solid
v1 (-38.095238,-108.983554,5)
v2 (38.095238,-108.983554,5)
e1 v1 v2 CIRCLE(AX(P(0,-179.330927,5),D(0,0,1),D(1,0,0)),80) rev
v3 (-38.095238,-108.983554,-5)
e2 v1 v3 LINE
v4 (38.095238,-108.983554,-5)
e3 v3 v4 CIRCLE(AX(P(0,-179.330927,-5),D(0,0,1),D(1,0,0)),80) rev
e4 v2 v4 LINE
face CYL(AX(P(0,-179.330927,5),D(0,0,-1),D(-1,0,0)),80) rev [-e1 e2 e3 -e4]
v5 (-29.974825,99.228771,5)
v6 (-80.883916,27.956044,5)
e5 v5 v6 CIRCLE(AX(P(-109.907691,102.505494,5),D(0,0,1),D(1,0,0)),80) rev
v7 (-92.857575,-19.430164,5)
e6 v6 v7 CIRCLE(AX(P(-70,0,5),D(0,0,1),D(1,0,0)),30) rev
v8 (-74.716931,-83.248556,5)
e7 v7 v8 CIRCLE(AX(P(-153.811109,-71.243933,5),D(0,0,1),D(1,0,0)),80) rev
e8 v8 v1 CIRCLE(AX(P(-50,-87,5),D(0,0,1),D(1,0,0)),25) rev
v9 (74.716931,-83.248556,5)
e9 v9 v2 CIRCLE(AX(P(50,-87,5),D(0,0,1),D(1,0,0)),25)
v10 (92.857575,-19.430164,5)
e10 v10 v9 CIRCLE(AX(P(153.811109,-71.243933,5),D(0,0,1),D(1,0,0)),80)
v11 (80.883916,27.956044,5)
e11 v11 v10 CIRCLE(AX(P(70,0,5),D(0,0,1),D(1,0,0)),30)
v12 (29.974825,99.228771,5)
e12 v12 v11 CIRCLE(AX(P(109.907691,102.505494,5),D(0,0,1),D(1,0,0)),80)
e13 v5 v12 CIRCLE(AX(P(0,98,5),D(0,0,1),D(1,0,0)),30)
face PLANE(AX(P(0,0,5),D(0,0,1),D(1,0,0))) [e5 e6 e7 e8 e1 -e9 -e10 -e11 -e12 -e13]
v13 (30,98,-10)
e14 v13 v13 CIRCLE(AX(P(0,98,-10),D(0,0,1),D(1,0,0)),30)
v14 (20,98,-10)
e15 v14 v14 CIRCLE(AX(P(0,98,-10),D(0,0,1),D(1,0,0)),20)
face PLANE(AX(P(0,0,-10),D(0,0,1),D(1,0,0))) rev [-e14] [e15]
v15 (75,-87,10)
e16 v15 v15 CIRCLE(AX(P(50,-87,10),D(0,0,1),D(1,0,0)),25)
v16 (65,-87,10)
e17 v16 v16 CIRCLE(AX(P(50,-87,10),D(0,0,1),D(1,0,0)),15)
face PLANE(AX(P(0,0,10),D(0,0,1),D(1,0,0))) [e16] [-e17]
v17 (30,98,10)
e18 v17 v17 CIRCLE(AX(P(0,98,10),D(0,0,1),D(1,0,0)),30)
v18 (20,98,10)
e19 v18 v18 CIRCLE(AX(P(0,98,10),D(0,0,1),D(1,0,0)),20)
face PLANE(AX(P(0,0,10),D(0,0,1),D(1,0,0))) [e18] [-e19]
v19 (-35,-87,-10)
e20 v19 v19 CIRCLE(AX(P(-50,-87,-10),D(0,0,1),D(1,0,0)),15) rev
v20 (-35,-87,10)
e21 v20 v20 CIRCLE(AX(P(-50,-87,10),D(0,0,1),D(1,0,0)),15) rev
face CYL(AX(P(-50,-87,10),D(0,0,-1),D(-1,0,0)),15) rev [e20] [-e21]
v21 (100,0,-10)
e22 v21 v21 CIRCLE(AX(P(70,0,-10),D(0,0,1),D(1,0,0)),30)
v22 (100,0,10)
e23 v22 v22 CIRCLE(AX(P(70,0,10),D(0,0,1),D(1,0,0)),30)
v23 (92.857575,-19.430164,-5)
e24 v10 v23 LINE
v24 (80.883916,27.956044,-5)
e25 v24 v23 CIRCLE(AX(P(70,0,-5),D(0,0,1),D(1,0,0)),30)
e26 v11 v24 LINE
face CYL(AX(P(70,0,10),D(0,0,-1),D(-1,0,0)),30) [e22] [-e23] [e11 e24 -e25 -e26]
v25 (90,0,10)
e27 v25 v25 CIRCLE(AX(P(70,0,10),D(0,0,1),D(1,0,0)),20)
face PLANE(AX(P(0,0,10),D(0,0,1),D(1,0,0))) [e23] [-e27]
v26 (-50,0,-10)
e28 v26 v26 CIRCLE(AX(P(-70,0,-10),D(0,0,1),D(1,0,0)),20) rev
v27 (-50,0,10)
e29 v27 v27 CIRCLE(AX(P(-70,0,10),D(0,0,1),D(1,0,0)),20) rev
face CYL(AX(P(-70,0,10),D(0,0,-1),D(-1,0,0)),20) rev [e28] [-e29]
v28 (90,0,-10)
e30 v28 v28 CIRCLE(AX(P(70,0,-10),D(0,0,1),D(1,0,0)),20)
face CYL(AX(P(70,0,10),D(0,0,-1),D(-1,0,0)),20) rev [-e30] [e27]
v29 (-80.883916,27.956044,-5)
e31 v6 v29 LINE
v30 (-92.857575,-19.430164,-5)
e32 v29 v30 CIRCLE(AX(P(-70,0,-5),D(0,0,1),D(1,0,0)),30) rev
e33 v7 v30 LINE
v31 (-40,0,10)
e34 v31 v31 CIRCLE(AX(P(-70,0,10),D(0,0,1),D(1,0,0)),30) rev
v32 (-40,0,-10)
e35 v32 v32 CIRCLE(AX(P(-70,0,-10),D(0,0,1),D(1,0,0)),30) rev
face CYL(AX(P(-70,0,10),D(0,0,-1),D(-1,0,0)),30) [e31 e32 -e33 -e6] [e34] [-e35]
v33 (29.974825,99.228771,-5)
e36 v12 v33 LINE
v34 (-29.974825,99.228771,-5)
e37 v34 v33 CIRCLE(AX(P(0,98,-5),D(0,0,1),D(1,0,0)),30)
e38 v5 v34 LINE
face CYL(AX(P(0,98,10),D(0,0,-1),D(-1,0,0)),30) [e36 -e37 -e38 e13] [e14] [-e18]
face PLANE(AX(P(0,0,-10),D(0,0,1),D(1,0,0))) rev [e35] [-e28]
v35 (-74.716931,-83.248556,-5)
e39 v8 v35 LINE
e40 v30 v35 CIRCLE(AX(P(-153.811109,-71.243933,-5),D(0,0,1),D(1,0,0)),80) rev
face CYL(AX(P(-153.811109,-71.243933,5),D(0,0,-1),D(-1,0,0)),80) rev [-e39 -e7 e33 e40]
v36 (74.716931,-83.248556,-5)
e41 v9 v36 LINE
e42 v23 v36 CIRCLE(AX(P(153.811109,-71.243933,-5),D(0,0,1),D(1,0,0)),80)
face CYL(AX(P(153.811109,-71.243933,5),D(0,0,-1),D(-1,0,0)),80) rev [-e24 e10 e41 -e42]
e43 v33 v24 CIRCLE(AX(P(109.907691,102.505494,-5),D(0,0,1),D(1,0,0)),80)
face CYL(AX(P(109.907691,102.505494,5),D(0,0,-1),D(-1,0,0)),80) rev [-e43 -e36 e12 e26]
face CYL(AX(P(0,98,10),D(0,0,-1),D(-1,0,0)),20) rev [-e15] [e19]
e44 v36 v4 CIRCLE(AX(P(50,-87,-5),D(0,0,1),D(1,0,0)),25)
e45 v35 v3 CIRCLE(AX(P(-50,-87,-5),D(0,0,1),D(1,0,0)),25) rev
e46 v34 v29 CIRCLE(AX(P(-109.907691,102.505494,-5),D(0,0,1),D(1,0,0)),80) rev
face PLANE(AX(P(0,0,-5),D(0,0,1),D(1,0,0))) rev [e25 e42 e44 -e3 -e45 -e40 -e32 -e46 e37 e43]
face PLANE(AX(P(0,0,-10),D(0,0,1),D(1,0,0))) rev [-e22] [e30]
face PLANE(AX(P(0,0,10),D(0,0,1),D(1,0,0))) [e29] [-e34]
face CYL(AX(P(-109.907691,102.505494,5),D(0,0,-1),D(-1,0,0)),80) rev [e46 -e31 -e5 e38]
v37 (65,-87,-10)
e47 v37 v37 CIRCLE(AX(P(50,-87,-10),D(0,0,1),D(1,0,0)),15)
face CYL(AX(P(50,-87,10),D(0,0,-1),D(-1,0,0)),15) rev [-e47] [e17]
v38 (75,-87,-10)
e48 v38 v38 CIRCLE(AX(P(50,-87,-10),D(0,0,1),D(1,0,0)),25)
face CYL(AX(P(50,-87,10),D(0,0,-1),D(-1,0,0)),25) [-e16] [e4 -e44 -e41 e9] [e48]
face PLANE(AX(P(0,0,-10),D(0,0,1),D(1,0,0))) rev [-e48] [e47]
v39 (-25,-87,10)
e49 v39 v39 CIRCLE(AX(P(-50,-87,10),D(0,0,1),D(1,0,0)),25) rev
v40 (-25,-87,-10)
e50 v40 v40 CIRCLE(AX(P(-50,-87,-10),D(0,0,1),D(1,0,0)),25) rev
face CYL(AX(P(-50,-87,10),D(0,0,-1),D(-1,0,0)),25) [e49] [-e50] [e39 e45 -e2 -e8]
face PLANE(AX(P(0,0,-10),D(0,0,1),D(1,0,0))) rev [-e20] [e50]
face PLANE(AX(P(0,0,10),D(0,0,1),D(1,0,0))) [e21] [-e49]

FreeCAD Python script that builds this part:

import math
import FreeCAD as App
import Part
import Sketcher
from FreeCAD import Vector
Q = App.Units.Quantity

doc = App.newDocument("Part")
body = doc.addObject("PartDesign::Body", "Body")

sketch1 = body.newObject("Sketcher::SketchObject", "Sketch")
sketch1.AttachmentSupport = (doc.getObject("XY_Plane"), [""])
sketch1.MapMode = "FlatFace"
sketch1.addGeometry(Part.ArcOfCircle(Part.Circle(Vector(0, 98, 0), Vector(0, 0, 1), 30), math.radians(-90), math.radians(0)), False)
sketch1.addGeometry(Part.ArcOfCircle(Part.Circle(Vector(0, 98, 0), Vector(0, 0, 1), 30), math.radians(178), math.radians(270)), False)
sketch1.addGeometry(Part.ArcOfCircle(Part.Circle(Vector(-109.9, 102.5, 0), Vector(0, 0, 1), 80), math.radians(-69), math.radians(-2)), False)
sketch1.addGeometry(Part.ArcOfCircle(Part.Circle(Vector(-70, 0, 0), Vector(0, 0, 1), 30), math.radians(0), math.radians(111)), False)
sketch1.addGeometry(Part.ArcOfCircle(Part.Circle(Vector(-70, 0, 0), Vector(0, 0, 1), 30), math.radians(-140), math.radians(0)), False)
sketch1.addGeometry(Part.ArcOfCircle(Part.Circle(Vector(-153.8, -71.2, 0), Vector(0, 0, 1), 80), math.radians(-9), math.radians(40)), False)
sketch1.addGeometry(Part.ArcOfCircle(Part.Circle(Vector(-50, -87, 0), Vector(0, 0, 1), 25), math.radians(0), math.radians(171)), False)
sketch1.addGeometry(Part.ArcOfCircle(Part.Circle(Vector(-50, -87, 0), Vector(0, 0, 1), 25), math.radians(-62), math.radians(0)), False)
sketch1.addGeometry(Part.ArcOfCircle(Part.Circle(Vector(0, -179.3, 0), Vector(0, 0, 1), 80), math.radians(62), math.radians(118)), False)
sketch1.addGeometry(Part.ArcOfCircle(Part.Circle(Vector(50, -87, 0), Vector(0, 0, 1), 25), math.radians(9), math.radians(242)), False)
sketch1.addGeometry(Part.ArcOfCircle(Part.Circle(Vector(153.8, -71.2, 0), Vector(0, 0, 1), 80), math.radians(140), math.radians(189)), False)
sketch1.addGeometry(Part.ArcOfCircle(Part.Circle(Vector(70, 0, 0), Vector(0, 0, 1), 30), math.radians(69), math.radians(320)), False)
sketch1.addGeometry(Part.ArcOfCircle(Part.Circle(Vector(109.9, 102.5, 0), Vector(0, 0, 1), 80), math.radians(-178), math.radians(-111)), False)
sketch1.addGeometry(Part.ArcOfCircle(Part.Circle(Vector(0, 98, 0), Vector(0, 0, 1), 30), math.radians(0), math.radians(2.35)), False)
sketch1.addConstraint(Sketcher.Constraint("Tangent", 0, 1, 1, 2))
sketch1.addConstraint(Sketcher.Constraint("Tangent", 1, 1, 2, 2))
sketch1.addConstraint(Sketcher.Constraint("Tangent", 2, 1, 3, 2))
sketch1.addConstraint(Sketcher.Constraint("Tangent", 3, 1, 4, 2))
sketch1.addConstraint(Sketcher.Constraint("Tangent", 4, 1, 5, 2))
sketch1.addConstraint(Sketcher.Constraint("Tangent", 5, 1, 6, 2))
sketch1.addConstraint(Sketcher.Constraint("Tangent", 6, 1, 7, 2))
sketch1.addConstraint(Sketcher.Constraint("Tangent", 7, 1, 8, 2))
sketch1.addConstraint(Sketcher.Constraint("Tangent", 8, 1, 9, 2))
sketch1.addConstraint(Sketcher.Constraint("Tangent", 9, 1, 10, 2))
sketch1.addConstraint(Sketcher.Constraint("Tangent", 10, 1, 11, 2))
sketch1.addConstraint(Sketcher.Constraint("Tangent", 11, 1, 12, 2))
sketch1.addConstraint(Sketcher.Constraint("Tangent", 12, 1, 13, 2))
sketch1.addConstraint(Sketcher.Constraint("Tangent", 13, 1, 0, 2))
sketch1.addConstraint(Sketcher.Constraint("Equal", 0, 1))
sketch1.addConstraint(Sketcher.Constraint("Equal", 1, 3))
sketch1.addConstraint(Sketcher.Constraint("Equal", 3, 4))
sketch1.addConstraint(Sketcher.Constraint("Equal", 2, 5))
sketch1.addConstraint(Sketcher.Constraint("Equal", 6, 7))
sketch1.addConstraint(Sketcher.Constraint("Equal", 5, 8))
sketch1.addConstraint(Sketcher.Constraint("Equal", 7, 9))
sketch1.addConstraint(Sketcher.Constraint("Equal", 8, 10))
sketch1.addConstraint(Sketcher.Constraint("Equal", 4, 11))
sketch1.addConstraint(Sketcher.Constraint("Equal", 10, 12))
sketch1.addConstraint(Sketcher.Constraint("Equal", 11, 13))
sketch1.addConstraint(Sketcher.Constraint("Symmetric", 3, 3, 11, 3, -1, 1))
sketch1.addConstraint(Sketcher.Constraint("Symmetric", 6, 3, 9, 3, -2))
sketch1.addConstraint(Sketcher.Constraint("Symmetric", 2, 3, 12, 3, -2))
sketch1.addConstraint(Sketcher.Constraint("PointOnObject", 0, 1, -2))
sketch1.addConstraint(Sketcher.Constraint("PointOnObject", 3, 1, -1))
sketch1.addConstraint(Sketcher.Constraint("Horizontal", 9, 3, 6, 1))
sketch1.addConstraint(Sketcher.Constraint("Horizontal", 1, 3, 13, 1))
sketch1.addConstraint(Sketcher.Constraint("Radius", 0, Q("30 mm")))
sketch1.addConstraint(Sketcher.Constraint("Radius", 2, Q("80 mm")))
sketch1.addConstraint(Sketcher.Constraint("Radius", 6, Q("25 mm")))
sketch1.addConstraint(Sketcher.Constraint("DistanceY", -1, 1, 0, 3, Q("98 mm")))
sketch1.addConstraint(Sketcher.Constraint("DistanceX", 3, 3, -1, 1, Q("70 mm")))
sketch1.addConstraint(Sketcher.Constraint("DistanceX", 6, 3, -1, 1, Q("50 mm")))
sketch1.addConstraint(Sketcher.Constraint("DistanceY", 6, 3, -1, 1, Q("87 mm")))
pad1 = body.newObject("PartDesign::Pad", "Pad")
pad1.Profile = sketch1
pad1.Length = 10
pad1.Midplane = True

sketch2 = body.newObject("Sketcher::SketchObject", "Sketch001")
sketch2.AttachmentSupport = (doc.getObject("XY_Plane"), [""])
sketch2.MapMode = "FlatFace"
sketch2.addGeometry(Part.ArcOfCircle(Part.Circle(Vector(0, 98, 0), Vector(0, 0, 1), 30), math.radians(178), math.radians(270)), False)
sketch2.addGeometry(Part.ArcOfCircle(Part.Circle(Vector(0, 98, 0), Vector(0, 0, 1), 30), math.radians(-90), math.radians(0)), False)
sketch2.addGeometry(Part.ArcOfCircle(Part.Circle(Vector(0, 98, 0), Vector(0, 0, 1), 30), math.radians(0), math.radians(2.35)), False)
sketch2.addGeometry(Part.ArcOfCircle(Part.Circle(Vector(0, 98, 0), Vector(0, 0, 1), 30), math.radians(2), math.radians(90)), False)
sketch2.addGeometry(Part.ArcOfCircle(Part.Circle(Vector(0, 98, 0), Vector(0, 0, 1), 30), math.radians(90), math.radians(178)), False)
sketch2.addGeometry(Part.ArcOfCircle(Part.Circle(Vector(0, 98, 0), Vector(0, 0, 1), 20), math.radians(90), math.radians(270)), False)
sketch2.addGeometry(Part.ArcOfCircle(Part.Circle(Vector(0, 98, 0), Vector(0, 0, 1), 20), math.radians(0), math.radians(90)), False)
sketch2.addGeometry(Part.ArcOfCircle(Part.Circle(Vector(0, 98, 0), Vector(0, 0, 1), 20), math.radians(-90), math.radians(0)), False)
sketch2.addGeometry(Part.Circle(Vector(70, 0, 0), Vector(0, 0, 1), 30), False)
sketch2.addGeometry(Part.Circle(Vector(70, 0, 0), Vector(0, 0, 1), 20), False)
sketch2.addGeometry(Part.Circle(Vector(-70, 0, 0), Vector(0, 0, 1), 30), False)
sketch2.addGeometry(Part.Circle(Vector(-70, 0, 0), Vector(0, 0, 1), 20), False)
sketch2.addGeometry(Part.Circle(Vector(-50, -87, 0), Vector(0, 0, 1), 25), False)
sketch2.addGeometry(Part.Circle(Vector(-50, -87, 0), Vector(0, 0, 1), 15), False)
sketch2.addGeometry(Part.Circle(Vector(50, -87, 0), Vector(0, 0, 1), 25), False)
sketch2.addGeometry(Part.Circle(Vector(50, -87, 0), Vector(0, 0, 1), 15), False)
sketch2.addConstraint(Sketcher.Constraint("Tangent", 0, 2, 1, 1))
sketch2.addConstraint(Sketcher.Constraint("Tangent", 1, 2, 2, 1))
sketch2.addConstraint(Sketcher.Constraint("Tangent", 2, 2, 3, 1))
sketch2.addConstraint(Sketcher.Constraint("Tangent", 3, 2, 4, 1))
sketch2.addConstraint(Sketcher.Constraint("Tangent", 4, 2, 0, 1))
sketch2.addConstraint(Sketcher.Constraint("Tangent", 5, 1, 6, 2))
sketch2.addConstraint(Sketcher.Constraint("Tangent", 6, 1, 7, 2))
sketch2.addConstraint(Sketcher.Constraint("Tangent", 7, 1, 5, 2))
sketch2.addConstraint(Sketcher.Constraint("Coincident", 2, 3, 0, 3))
sketch2.addConstraint(Sketcher.Constraint("Coincident", 5, 3, 0, 3))
sketch2.addConstraint(Sketcher.Constraint("Coincident", 9, 3, 8, 3))
sketch2.addConstraint(Sketcher.Constraint("Coincident", 11, 3, 10, 3))
sketch2.addConstraint(Sketcher.Constraint("Coincident", 13, 3, 12, 3))
sketch2.addConstraint(Sketcher.Constraint("Coincident", 15, 3, 14, 3))
sketch2.addConstraint(Sketcher.Constraint("Equal", 4, 8))
sketch2.addConstraint(Sketcher.Constraint("Equal", 7, 9))
sketch2.addConstraint(Sketcher.Constraint("Equal", 8, 10))
sketch2.addConstraint(Sketcher.Constraint("Equal", 9, 11))
sketch2.addConstraint(Sketcher.Constraint("Equal", 12, 14))
sketch2.addConstraint(Sketcher.Constraint("Equal", 13, 15))
sketch2.addConstraint(Sketcher.Constraint("Symmetric", 8, 3, 10, 3, -1, 1))
sketch2.addConstraint(Sketcher.Constraint("Symmetric", 12, 3, 14, 3, -2))
sketch2.addConstraint(Sketcher.Constraint("Symmetric", 2, 2, 4, 2, -2))
sketch2.addConstraint(Sketcher.Constraint("PointOnObject", 8, 3, -1))
sketch2.addConstraint(Sketcher.Constraint("PointOnObject", 0, 2, -2))
sketch2.addConstraint(Sketcher.Constraint("PointOnObject", 3, 2, -2))
sketch2.addConstraint(Sketcher.Constraint("PointOnObject", 5, 1, -2))
sketch2.addConstraint(Sketcher.Constraint("PointOnObject", 7, 1, -2))
sketch2.addConstraint(Sketcher.Constraint("Horizontal", 7, 3, 1, 2))
sketch2.addConstraint(Sketcher.Constraint("Horizontal", 1, 2, 6, 1))
sketch2.addConstraint(Sketcher.Constraint("Diameter", 8, Q("60 mm")))
sketch2.addConstraint(Sketcher.Constraint("Diameter", 9, Q("40 mm")))
sketch2.addConstraint(Sketcher.Constraint("Diameter", 12, Q("50 mm")))
sketch2.addConstraint(Sketcher.Constraint("Diameter", 13, Q("30 mm")))
sketch2.addConstraint(Sketcher.Constraint("DistanceY", -1, 1, 0, 3, Q("98 mm")))
sketch2.addConstraint(Sketcher.Constraint("DistanceX", -1, 1, 8, 3, Q("70 mm")))
sketch2.addConstraint(Sketcher.Constraint("DistanceX", 12, 3, -1, 1, Q("50 mm")))
sketch2.addConstraint(Sketcher.Constraint("DistanceY", 12, 3, -1, 1, Q("87 mm")))
sketch2.addConstraint(Sketcher.Constraint("DistanceY", -1, 1, 2, 2, Q("99.228771 mm")))
pad2 = body.newObject("PartDesign::Pad", "Pad001")
pad2.Profile = sketch2
pad2.Length = 20
pad2.Midplane = True

doc.recompute()
